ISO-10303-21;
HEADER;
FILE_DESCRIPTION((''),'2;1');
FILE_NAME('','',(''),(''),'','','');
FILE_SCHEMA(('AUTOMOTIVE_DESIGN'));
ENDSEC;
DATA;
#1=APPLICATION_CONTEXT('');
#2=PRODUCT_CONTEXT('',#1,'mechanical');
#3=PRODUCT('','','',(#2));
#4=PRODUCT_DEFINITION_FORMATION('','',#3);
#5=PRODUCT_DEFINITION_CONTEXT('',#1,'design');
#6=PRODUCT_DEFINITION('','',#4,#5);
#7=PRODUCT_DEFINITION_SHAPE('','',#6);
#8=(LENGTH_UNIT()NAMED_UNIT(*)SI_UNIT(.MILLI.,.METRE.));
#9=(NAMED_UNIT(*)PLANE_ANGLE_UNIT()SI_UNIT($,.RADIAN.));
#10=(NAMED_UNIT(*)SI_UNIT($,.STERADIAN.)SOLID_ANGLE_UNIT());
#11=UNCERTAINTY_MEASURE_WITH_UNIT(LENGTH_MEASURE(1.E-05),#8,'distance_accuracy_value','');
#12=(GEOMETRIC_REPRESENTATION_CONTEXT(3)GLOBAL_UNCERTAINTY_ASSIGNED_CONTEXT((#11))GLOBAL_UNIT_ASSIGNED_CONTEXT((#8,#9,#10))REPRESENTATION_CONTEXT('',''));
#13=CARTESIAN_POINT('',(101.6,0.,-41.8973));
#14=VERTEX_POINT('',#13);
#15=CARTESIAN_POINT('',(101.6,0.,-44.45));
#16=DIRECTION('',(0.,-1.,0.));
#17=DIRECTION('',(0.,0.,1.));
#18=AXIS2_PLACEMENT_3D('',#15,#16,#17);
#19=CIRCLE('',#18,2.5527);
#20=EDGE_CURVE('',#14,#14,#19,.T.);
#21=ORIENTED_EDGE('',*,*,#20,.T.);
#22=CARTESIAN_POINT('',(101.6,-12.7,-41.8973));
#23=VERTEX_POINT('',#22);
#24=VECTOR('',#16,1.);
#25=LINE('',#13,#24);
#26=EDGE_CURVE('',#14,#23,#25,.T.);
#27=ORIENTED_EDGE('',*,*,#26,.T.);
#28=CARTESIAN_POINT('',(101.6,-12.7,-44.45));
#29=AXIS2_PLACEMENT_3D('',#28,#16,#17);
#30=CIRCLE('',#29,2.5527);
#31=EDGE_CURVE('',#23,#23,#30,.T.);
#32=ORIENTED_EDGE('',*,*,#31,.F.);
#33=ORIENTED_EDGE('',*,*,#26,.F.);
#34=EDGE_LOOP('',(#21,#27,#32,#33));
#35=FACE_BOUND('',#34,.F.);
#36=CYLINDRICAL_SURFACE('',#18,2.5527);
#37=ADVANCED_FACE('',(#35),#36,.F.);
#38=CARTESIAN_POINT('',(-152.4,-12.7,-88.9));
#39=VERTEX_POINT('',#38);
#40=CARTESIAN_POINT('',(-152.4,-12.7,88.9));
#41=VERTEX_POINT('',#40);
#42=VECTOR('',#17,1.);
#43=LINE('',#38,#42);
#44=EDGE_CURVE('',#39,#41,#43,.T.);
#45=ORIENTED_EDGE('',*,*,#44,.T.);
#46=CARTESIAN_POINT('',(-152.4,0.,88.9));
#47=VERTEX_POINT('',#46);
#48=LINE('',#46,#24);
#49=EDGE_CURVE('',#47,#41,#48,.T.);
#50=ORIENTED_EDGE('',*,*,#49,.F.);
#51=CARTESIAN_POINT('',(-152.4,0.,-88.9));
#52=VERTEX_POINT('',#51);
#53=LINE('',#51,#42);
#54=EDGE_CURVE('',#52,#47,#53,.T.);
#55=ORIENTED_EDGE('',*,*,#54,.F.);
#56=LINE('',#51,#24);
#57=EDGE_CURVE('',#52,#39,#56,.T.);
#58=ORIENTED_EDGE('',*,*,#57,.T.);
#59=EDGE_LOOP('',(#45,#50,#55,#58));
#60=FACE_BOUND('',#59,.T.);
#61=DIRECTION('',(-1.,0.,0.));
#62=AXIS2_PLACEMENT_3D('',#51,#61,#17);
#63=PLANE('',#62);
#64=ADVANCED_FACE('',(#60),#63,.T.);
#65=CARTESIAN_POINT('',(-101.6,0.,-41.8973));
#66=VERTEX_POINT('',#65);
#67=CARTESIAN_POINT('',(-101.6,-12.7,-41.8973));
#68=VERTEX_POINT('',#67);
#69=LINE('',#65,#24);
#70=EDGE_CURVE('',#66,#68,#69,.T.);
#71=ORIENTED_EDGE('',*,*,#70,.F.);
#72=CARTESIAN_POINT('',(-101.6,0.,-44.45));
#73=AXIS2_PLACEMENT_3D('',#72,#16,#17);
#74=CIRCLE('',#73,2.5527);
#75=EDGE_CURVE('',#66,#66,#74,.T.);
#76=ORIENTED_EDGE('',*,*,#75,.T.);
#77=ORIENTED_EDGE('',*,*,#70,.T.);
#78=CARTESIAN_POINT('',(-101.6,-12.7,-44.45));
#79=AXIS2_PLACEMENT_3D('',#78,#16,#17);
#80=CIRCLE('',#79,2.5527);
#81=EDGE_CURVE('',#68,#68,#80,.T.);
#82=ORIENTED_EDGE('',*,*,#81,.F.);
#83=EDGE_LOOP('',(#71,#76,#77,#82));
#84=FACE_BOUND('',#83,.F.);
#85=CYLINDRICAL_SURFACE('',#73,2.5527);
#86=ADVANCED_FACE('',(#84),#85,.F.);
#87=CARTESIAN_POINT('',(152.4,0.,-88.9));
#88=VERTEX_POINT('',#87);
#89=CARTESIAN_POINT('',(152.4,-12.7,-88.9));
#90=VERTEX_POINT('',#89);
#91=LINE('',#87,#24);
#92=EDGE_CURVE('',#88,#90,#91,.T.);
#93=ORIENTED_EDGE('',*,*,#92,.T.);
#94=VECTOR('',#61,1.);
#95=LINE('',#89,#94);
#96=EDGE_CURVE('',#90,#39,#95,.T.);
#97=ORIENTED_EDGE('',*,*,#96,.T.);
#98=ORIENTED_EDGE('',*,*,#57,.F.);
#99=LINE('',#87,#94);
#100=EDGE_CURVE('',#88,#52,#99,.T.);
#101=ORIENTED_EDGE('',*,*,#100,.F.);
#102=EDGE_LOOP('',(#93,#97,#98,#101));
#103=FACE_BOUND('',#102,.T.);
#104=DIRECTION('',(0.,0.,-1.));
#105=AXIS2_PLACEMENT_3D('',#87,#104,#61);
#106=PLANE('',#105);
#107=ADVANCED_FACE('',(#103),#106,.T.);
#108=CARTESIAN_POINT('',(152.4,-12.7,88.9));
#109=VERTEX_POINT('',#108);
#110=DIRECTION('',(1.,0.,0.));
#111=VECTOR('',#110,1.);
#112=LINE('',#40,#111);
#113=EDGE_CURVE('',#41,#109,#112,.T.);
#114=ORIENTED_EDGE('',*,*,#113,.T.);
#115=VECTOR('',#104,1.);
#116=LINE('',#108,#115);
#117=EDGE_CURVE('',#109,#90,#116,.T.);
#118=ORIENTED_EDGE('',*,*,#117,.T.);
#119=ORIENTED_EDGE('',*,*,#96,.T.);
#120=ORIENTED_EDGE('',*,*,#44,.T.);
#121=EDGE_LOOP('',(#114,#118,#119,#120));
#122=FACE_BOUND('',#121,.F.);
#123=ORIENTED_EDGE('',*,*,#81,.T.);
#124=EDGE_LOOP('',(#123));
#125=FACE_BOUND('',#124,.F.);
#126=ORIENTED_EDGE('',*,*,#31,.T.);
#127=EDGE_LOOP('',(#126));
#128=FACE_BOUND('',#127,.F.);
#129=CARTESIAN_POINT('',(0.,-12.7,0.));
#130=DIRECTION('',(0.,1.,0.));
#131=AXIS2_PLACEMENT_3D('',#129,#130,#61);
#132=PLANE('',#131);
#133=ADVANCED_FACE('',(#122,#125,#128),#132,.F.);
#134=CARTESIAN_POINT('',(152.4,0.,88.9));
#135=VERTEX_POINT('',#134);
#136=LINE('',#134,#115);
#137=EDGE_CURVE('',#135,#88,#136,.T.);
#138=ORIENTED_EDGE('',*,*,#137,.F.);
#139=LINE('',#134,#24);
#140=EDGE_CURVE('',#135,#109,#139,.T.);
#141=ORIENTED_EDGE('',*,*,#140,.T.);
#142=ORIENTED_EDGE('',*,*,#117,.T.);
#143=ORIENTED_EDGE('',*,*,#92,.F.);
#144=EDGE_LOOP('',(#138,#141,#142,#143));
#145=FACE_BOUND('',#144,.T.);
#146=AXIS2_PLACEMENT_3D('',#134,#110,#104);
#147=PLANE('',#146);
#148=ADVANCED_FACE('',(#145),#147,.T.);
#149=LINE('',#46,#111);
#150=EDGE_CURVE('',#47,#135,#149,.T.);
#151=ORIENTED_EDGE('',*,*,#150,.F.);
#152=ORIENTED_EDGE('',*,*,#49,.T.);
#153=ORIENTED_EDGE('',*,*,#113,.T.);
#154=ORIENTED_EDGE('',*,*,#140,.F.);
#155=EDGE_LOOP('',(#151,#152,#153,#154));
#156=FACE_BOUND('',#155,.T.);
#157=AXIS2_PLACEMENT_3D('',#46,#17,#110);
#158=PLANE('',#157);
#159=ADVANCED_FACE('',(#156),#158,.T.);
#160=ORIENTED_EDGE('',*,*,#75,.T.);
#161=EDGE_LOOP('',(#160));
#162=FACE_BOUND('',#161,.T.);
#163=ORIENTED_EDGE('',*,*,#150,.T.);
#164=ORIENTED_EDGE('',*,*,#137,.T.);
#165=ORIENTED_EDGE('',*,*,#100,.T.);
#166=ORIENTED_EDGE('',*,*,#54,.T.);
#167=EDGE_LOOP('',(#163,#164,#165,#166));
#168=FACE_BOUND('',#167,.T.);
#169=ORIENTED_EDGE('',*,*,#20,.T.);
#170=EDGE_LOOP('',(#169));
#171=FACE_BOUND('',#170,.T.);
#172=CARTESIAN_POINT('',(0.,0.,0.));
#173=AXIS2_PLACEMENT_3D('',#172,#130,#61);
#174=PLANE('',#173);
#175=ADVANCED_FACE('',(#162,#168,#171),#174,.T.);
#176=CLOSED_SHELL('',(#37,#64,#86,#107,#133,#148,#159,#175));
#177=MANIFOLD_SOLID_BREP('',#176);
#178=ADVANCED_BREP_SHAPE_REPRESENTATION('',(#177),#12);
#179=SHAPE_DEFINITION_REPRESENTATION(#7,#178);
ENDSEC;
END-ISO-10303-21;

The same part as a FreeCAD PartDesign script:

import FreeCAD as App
import Part
import Sketcher
from FreeCAD import Vector
Q = App.Units.Quantity


def add_polygon(sketch, points):
    """Adds a closed chain of lines whose ends are joined by coincident constraints."""
    first, n = sketch.GeometryCount, len(points)
    for a, b in zip(points, points[1:] + points[:1]):
        sketch.addGeometry(Part.LineSegment(App.Vector(*a, 0), App.Vector(*b, 0)), False)
    for i in range(n):
        sketch.addConstraint(Sketcher.Constraint("Coincident", first + i, 2, first + (i + 1) % n, 1))

doc = App.newDocument("Part")
body = doc.addObject("PartDesign::Body", "Body")

sketch1 = body.newObject("Sketcher::SketchObject", "Sketch")
sketch1.AttachmentSupport = (doc.getObject("XZ_Plane"), [""])
sketch1.MapMode = "FlatFace"
add_polygon(sketch1, [(-152, -89), (-152, 89), (152, 89), (152, -89)])
sketch1.addConstraint([
    Sketcher.Constraint("Vertical", 0),
    Sketcher.Constraint("Horizontal", 1),
    Sketcher.Constraint("Vertical", 2),
    Sketcher.Constraint("Horizontal", 3),
    Sketcher.Constraint("Symmetric", 0, 2, 2, 2, -1, 1),
    Sketcher.Constraint("DistanceX", 1, 1, 1, 2, Q("12 in")),
    Sketcher.Constraint("DistanceY", 0, 1, 0, 2, Q("7 in")),
])
pad1 = body.newObject("PartDesign::Pad", "Pad")
pad1.Profile = sketch1
pad1.Length = Q("0.5 in")

sketch2 = body.newObject("Sketcher::SketchObject", "Sketch001")
sketch2.AttachmentSupport = (doc.getObject("XZ_Plane"), [""])
sketch2.MapMode = "FlatFace"
sketch2.addGeometry([
    Part.Circle(Vector(-101.6, -44.5, 0), Vector(0, 0, 1), 2.6),
    Part.Circle(Vector(101.6, -44.5, 0), Vector(0, 0, 1), 2.6),
], False)
sketch2.addConstraint([
    Sketcher.Constraint("Equal", 0, 1),
    Sketcher.Constraint("Symmetric", 0, 3, 1, 3, -2),
    Sketcher.Constraint("Diameter", 0, Q("0.201 in")),
    Sketcher.Constraint("DistanceX", 0, 3, -1, 1, Q("4 in")),
    Sketcher.Constraint("DistanceY", 0, 3, -1, 1, Q("1.75 in")),
])
doc.recompute()
hole = body.newObject("PartDesign::Hole", "Hole")
hole.Profile = sketch2
hole.ThreadType = "None"
hole.Diameter = Q("0.201 in")
hole.DepthType = "ThroughAll"
hole.Reversed = True

doc.recompute()
